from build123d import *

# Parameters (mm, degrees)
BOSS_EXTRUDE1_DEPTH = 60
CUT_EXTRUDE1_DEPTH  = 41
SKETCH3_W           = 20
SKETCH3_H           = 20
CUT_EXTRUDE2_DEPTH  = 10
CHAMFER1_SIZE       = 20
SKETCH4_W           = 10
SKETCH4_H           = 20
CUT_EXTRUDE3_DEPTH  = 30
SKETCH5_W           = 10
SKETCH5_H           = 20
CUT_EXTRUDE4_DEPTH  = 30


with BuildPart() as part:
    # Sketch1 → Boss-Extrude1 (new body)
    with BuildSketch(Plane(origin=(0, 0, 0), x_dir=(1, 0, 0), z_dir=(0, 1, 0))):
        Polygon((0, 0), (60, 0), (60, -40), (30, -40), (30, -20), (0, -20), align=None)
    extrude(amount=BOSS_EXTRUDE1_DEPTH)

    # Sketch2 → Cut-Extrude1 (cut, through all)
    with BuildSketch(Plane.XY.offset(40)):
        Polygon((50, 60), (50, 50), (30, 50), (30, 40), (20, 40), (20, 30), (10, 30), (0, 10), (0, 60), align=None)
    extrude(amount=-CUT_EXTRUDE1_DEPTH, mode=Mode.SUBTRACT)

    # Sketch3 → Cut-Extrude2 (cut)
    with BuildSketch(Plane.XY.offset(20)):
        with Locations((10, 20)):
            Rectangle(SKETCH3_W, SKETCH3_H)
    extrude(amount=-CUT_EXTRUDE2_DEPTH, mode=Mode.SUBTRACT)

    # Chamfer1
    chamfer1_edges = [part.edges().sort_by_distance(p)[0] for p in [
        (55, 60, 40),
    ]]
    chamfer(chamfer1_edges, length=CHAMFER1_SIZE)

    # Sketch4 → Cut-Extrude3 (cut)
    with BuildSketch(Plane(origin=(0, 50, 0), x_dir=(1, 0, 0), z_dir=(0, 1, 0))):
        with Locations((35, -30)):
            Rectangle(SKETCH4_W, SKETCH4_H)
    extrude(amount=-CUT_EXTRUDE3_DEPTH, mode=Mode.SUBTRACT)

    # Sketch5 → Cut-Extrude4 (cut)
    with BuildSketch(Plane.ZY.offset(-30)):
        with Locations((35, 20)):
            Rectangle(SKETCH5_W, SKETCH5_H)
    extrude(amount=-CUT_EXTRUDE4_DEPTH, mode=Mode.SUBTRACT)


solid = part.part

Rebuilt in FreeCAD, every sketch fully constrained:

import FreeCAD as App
import Part
import Sketcher

V = App.Vector
Q = App.Units.Quantity


def edges_at(feature, points):
    """Names of the edges that pass closest to the given points."""
    edges = feature.Shape.Edges
    near = lambda p: min(range(len(edges)), key=lambda i: edges[i].distToShape(Part.Vertex(*p))[0])
    return sorted({f"Edge{near(p) + 1}" for p in points})


def add_polygon(sketch, points):
    """Adds a closed chain of lines whose ends are joined by coincident constraints."""
    first, n = sketch.GeometryCount, len(points)
    for a, b in zip(points, points[1:] + points[:1]):
        sketch.addGeometry(Part.LineSegment(App.Vector(*a, 0), App.Vector(*b, 0)), False)
    for i in range(n):
        sketch.addConstraint(Sketcher.Constraint("Coincident", first + i, 2, first + (i + 1) % n, 1))

doc = App.newDocument("Part")
body = doc.addObject("PartDesign::Body", "Body")

sketch1 = body.newObject("Sketcher::SketchObject", "Sketch")
sketch1.AttachmentSupport = (doc.getObject("XZ_Plane"), [""])
sketch1.MapMode = "FlatFace"
add_polygon(sketch1, [(60, 0), (0, 0), (0, 20), (30, 20), (30, 40), (60, 40)])
sketch1.addConstraint(Sketcher.Constraint("Horizontal", 0))
sketch1.addConstraint(Sketcher.Constraint("Vertical", 1))
sketch1.addConstraint(Sketcher.Constraint("Horizontal", 2))
sketch1.addConstraint(Sketcher.Constraint("Vertical", 3))
sketch1.addConstraint(Sketcher.Constraint("Horizontal", 4))
sketch1.addConstraint(Sketcher.Constraint("Vertical", 5))
sketch1.addConstraint(Sketcher.Constraint("Coincident", 0, 2, -1, 1))
sketch1.addConstraint(Sketcher.Constraint("Equal", 2, 4))
sketch1.addConstraint(Sketcher.Constraint("Equal", 1, 3))
sketch1.addConstraint(Sketcher.Constraint("DistanceX", 0, 2, 0, 1, Q("60 mm")))
sketch1.addConstraint(Sketcher.Constraint("DistanceY", 1, 1, 1, 2, Q("20 mm")))
pad1 = body.newObject("PartDesign::Pad", "Pad")
pad1.Profile = sketch1
pad1.Length = 60
pad1.Reversed = True

sketch2 = body.newObject("Sketcher::SketchObject", "Sketch001")
sketch2.AttachmentSupport = (doc.getObject("XY_Plane"), [""])
sketch2.MapMode = "FlatFace"
sketch2.AttachmentOffset = App.Placement(V(0, 0, 40), App.Rotation())
add_polygon(sketch2, [(50, 50), (50, 60), (0, 60), (0, 10), (10, 30), (20, 30), (20, 40), (30, 40), (30, 50)])
sketch2.addConstraint(Sketcher.Constraint("Vertical", 0))
sketch2.addConstraint(Sketcher.Constraint("Horizontal", 1))
sketch2.addConstraint(Sketcher.Constraint("Vertical", 2))
sketch2.addConstraint(Sketcher.Constraint("Horizontal", 4))
sketch2.addConstraint(Sketcher.Constraint("Vertical", 5))
sketch2.addConstraint(Sketcher.Constraint("Horizontal", 6))
sketch2.addConstraint(Sketcher.Constraint("Vertical", 7))
sketch2.addConstraint(Sketcher.Constraint("Horizontal", 8))
sketch2.addConstraint(Sketcher.Constraint("PointOnObject", 1, 2, -2))
sketch2.addConstraint(Sketcher.Constraint("Equal", 4, 6))
sketch2.addConstraint(Sketcher.Constraint("Equal", 6, 0))
sketch2.addConstraint(Sketcher.Constraint("Equal", 1, 2))
sketch2.addConstraint(Sketcher.Constraint("Equal", 0, 5))
sketch2.addConstraint(Sketcher.Constraint("Equal", 5, 7))
sketch2.addConstraint(Sketcher.Constraint("DistanceX", 1, 2, 1, 1, Q("50 mm")))
sketch2.addConstraint(Sketcher.Constraint("DistanceX", 4, 1, 4, 2, Q("10 mm")))
sketch2.addConstraint(Sketcher.Constraint("DistanceX", 8, 1, 8, 2, Q("20 mm")))
sketch2.addConstraint(Sketcher.Constraint("DistanceY", -1, 1, 0, 2, Q("60 mm")))
pocket1 = body.newObject("PartDesign::Pocket", "Pocket")
pocket1.Profile = sketch2
pocket1.Type = "ThroughAll"

sketch3 = body.newObject("Sketcher::SketchObject", "Sketch002")
sketch3.AttachmentSupport = (doc.getObject("XY_Plane"), [""])
sketch3.MapMode = "FlatFace"
sketch3.AttachmentOffset = App.Placement(V(0, 0, 20), App.Rotation())
add_polygon(sketch3, [(0, 30), (0, 10), (20, 10), (20, 30)])
sketch3.addConstraint(Sketcher.Constraint("Vertical", 0))
sketch3.addConstraint(Sketcher.Constraint("Horizontal", 1))
sketch3.addConstraint(Sketcher.Constraint("Vertical", 2))
sketch3.addConstraint(Sketcher.Constraint("Horizontal", 3))
sketch3.addConstraint(Sketcher.Constraint("PointOnObject", 0, 2, -2))
sketch3.addConstraint(Sketcher.Constraint("Equal", 3, 0))
sketch3.addConstraint(Sketcher.Constraint("DistanceX", 1, 1, 1, 2, Q("20 mm")))
sketch3.addConstraint(Sketcher.Constraint("DistanceY", -1, 1, 0, 2, Q("10 mm")))
pocket2 = body.newObject("PartDesign::Pocket", "Pocket001")
pocket2.Profile = sketch3
pocket2.Length = 10
doc.recompute()

chamfer = body.newObject("PartDesign::Chamfer", "Chamfer")
chamfer.Base = (pocket2, edges_at(pocket2, [(55, 60, 40)]))
chamfer.Size = 20

sketch4 = body.newObject("Sketcher::SketchObject", "Sketch003")
sketch4.AttachmentSupport = (doc.getObject("XZ_Plane"), [""])
sketch4.MapMode = "FlatFace"
sketch4.AttachmentOffset = App.Placement(V(0, 0, -50), App.Rotation())
add_polygon(sketch4, [(30, 20), (30, 40), (40, 40), (40, 20)])
sketch4.addConstraint(Sketcher.Constraint("Vertical", 0))
sketch4.addConstraint(Sketcher.Constraint("Horizontal", 1))
sketch4.addConstraint(Sketcher.Constraint("Vertical", 2))
sketch4.addConstraint(Sketcher.Constraint("Horizontal", 3))
sketch4.addConstraint(Sketcher.Constraint("DistanceX", 1, 1, 1, 2, Q("10 mm")))
sketch4.addConstraint(Sketcher.Constraint("DistanceY", 0, 1, 0, 2, Q("20 mm")))
sketch4.addConstraint(Sketcher.Constraint("DistanceX", -1, 1, 0, 2, Q("30 mm")))
sketch4.addConstraint(Sketcher.Constraint("DistanceY", -1, 1, 0, 2, Q("40 mm")))
pocket3 = body.newObject("PartDesign::Pocket", "Pocket002")
pocket3.Profile = sketch4
pocket3.Length = 30
pocket3.Reversed = True

sketch5 = body.newObject("Sketcher::SketchObject", "Sketch004")
sketch5.AttachmentSupport = (doc.getObject("YZ_Plane"), [""])
sketch5.MapMode = "FlatFace"
sketch5.AttachmentOffset = App.Placement(V(0, 0, 30), App.Rotation())
add_polygon(sketch5, [(30, 30), (10, 30), (10, 40), (30, 40)])
sketch5.addConstraint(Sketcher.Constraint("Horizontal", 0))
sketch5.addConstraint(Sketcher.Constraint("Vertical", 1))
sketch5.addConstraint(Sketcher.Constraint("Horizontal", 2))
sketch5.addConstraint(Sketcher.Constraint("Vertical", 3))
sketch5.addConstraint(Sketcher.Constraint("DistanceX", 0, 2, 0, 1, Q("20 mm")))
sketch5.addConstraint(Sketcher.Constraint("DistanceY", 1, 1, 1, 2, Q("10 mm")))
sketch5.addConstraint(Sketcher.Constraint("DistanceX", -1, 1, 0, 2, Q("10 mm")))
sketch5.addConstraint(Sketcher.Constraint("DistanceY", -1, 1, 0, 2, Q("30 mm")))
pocket4 = body.newObject("PartDesign::Pocket", "Pocket003")
pocket4.Profile = sketch5
pocket4.Length = 30
pocket4.Reversed = True

doc.recompute()
